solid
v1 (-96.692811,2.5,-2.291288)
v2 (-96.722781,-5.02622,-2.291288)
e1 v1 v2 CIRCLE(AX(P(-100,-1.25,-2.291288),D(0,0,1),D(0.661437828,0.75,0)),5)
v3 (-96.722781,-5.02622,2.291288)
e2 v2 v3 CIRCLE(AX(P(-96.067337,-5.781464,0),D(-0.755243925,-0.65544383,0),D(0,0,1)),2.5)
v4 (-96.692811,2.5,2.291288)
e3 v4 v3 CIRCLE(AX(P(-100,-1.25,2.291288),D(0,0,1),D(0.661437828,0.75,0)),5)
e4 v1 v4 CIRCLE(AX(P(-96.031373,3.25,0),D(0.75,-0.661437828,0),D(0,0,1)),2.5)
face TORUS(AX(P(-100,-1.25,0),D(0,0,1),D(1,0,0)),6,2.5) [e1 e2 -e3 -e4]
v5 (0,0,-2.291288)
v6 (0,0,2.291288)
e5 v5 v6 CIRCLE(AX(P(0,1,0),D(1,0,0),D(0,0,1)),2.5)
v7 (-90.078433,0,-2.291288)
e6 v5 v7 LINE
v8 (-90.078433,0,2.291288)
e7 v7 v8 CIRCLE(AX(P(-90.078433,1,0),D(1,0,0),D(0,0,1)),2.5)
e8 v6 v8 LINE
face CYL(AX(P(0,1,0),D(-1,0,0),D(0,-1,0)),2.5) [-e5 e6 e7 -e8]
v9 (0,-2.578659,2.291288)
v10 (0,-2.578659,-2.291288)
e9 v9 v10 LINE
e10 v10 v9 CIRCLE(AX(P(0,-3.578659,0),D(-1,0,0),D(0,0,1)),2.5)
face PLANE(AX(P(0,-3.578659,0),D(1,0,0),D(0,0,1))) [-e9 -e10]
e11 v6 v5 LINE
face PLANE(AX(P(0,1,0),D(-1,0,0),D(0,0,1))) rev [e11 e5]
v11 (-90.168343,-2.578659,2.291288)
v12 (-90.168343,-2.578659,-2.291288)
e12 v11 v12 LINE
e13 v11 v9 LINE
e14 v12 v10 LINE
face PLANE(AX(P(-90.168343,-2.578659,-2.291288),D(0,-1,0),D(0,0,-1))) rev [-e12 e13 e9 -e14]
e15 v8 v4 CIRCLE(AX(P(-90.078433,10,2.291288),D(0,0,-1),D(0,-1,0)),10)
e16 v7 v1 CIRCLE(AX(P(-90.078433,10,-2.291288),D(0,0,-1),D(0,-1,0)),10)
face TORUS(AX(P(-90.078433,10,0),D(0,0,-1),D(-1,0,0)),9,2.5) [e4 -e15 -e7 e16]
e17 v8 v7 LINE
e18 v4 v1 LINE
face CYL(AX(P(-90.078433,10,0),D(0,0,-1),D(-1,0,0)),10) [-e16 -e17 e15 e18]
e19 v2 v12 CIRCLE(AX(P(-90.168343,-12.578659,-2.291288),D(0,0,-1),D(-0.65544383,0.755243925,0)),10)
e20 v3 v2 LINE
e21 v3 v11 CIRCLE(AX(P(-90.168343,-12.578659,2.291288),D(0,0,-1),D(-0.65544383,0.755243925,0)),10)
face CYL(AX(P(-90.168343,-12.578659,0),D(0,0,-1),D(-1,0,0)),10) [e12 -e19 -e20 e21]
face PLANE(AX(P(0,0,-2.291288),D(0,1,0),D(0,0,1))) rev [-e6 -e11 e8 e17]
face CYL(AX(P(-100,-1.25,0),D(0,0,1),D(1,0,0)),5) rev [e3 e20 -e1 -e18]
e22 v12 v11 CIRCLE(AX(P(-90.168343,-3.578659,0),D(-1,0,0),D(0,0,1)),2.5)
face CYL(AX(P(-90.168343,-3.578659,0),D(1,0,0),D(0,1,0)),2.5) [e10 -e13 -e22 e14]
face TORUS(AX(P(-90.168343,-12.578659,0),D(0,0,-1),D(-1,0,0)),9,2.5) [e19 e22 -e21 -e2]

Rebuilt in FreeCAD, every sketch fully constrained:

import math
import FreeCAD as App
import Part
import Sketcher

doc = App.newDocument("Part")
params = doc.addObject("Spreadsheet::Sheet", "Params")
for row, (alias, value) in enumerate([
    ("sketch1_radius", "2.5 mm"),
    ("sketch2_radius", "10 mm"),
    ("sketch2_radius2", "5 mm"),
], start=1):
    params.set(f"A{row}", alias)
    params.set(f"B{row}", "=" + value)
    params.setAlias(f"B{row}", alias)

body = doc.addObject("PartDesign::Body", "Body")

sketch1 = body.newObject("Sketcher::SketchObject", "Sketch")
sketch1.AttachmentSupport = (doc.getObject("YZ_Plane"), [""])
sketch1.MapMode = "FlatFace"
sketch1.addGeometry([
    Part.LineSegment(App.Vector(0, 2.3, 0), App.Vector(0, -2.3, 0)),
    Part.ArcOfCircle(Part.Circle(App.Vector(1, 0, 0), App.Vector(0, 0, 1), 2.5), math.radians(-114), math.radians(114)),
], False)
sketch1.addConstraint([
    Sketcher.Constraint("Coincident", 0, 1, 1, 2),
    Sketcher.Constraint("Coincident", 1, 1, 0, 2),
    Sketcher.Constraint("Vertical", 0),
    Sketcher.Constraint("Symmetric", 0, 1, 1, 1, -1, 1),
    Sketcher.Constraint("Radius", 1, 2.5),
    Sketcher.Constraint("DistanceX", -1, 1, 1, 3, 1.0),
])
sketch1.setExpression("Constraints[4]", "Params.sketch1_radius")

sketch2 = body.newObject("Sketcher::SketchObject", "Sketch001")
sketch2.AttachmentSupport = (doc.getObject("XY_Plane"), [""])
sketch2.MapMode = "FlatFace"
sketch2.addGeometry([
    Part.LineSegment(App.Vector(0, 0, 0), App.Vector(-90, 0, 0)),
    Part.ArcOfCircle(Part.Circle(App.Vector(-90, 10, 0), App.Vector(0, 0, 1), 10), math.radians(-131), math.radians(-90)),
    Part.ArcOfCircle(Part.Circle(App.Vector(-100, -1, 0), App.Vector(0, 0, 1), 5), math.radians(49), math.radians(311)),
    Part.ArcOfCircle(Part.Circle(App.Vector(-90, -13, 0), App.Vector(0, 0, 1), 10), math.radians(90), math.radians(131)),
    Part.LineSegment(App.Vector(-90, -3, 0), App.Vector(0, -3, 0)),
], False)
sketch2.addConstraint([
    Sketcher.Constraint("Tangent", 0, 2, 1, 2),
    Sketcher.Constraint("Tangent", 1, 1, 2, 1),
    Sketcher.Constraint("Tangent", 2, 2, 3, 2),
    Sketcher.Constraint("Tangent", 3, 1, 4, 1),
    Sketcher.Constraint("Horizontal", 0),
    Sketcher.Constraint("Horizontal", 4),
    Sketcher.Constraint("Coincident", 0, 1, -1, 1),
    Sketcher.Constraint("Equal", 1, 3),
    Sketcher.Constraint("PointOnObject", 4, 2, -2),
    Sketcher.Constraint("Radius", 1, 10.0),
    Sketcher.Constraint("Radius", 2, 5.0),
    Sketcher.Constraint("DistanceX", 2, 3, -1, 1, 100.0),
    Sketcher.Constraint("DistanceY", -1, 1, 1, 1, 2.5),
    Sketcher.Constraint("DistanceX", 4, 1, 4, 2, 90.168343),
])
sketch2.setExpression("Constraints[9]", "Params.sketch2_radius")
sketch2.setExpression("Constraints[10]", "Params.sketch2_radius2")
doc.recompute()

additivepipe = body.newObject("PartDesign::AdditivePipe", "AdditivePipe")
additivepipe.Profile = sketch1
additivepipe.Spine = (sketch2, ["Edge1", "Edge2", "Edge3", "Edge4", "Edge5"])

doc.recompute()
